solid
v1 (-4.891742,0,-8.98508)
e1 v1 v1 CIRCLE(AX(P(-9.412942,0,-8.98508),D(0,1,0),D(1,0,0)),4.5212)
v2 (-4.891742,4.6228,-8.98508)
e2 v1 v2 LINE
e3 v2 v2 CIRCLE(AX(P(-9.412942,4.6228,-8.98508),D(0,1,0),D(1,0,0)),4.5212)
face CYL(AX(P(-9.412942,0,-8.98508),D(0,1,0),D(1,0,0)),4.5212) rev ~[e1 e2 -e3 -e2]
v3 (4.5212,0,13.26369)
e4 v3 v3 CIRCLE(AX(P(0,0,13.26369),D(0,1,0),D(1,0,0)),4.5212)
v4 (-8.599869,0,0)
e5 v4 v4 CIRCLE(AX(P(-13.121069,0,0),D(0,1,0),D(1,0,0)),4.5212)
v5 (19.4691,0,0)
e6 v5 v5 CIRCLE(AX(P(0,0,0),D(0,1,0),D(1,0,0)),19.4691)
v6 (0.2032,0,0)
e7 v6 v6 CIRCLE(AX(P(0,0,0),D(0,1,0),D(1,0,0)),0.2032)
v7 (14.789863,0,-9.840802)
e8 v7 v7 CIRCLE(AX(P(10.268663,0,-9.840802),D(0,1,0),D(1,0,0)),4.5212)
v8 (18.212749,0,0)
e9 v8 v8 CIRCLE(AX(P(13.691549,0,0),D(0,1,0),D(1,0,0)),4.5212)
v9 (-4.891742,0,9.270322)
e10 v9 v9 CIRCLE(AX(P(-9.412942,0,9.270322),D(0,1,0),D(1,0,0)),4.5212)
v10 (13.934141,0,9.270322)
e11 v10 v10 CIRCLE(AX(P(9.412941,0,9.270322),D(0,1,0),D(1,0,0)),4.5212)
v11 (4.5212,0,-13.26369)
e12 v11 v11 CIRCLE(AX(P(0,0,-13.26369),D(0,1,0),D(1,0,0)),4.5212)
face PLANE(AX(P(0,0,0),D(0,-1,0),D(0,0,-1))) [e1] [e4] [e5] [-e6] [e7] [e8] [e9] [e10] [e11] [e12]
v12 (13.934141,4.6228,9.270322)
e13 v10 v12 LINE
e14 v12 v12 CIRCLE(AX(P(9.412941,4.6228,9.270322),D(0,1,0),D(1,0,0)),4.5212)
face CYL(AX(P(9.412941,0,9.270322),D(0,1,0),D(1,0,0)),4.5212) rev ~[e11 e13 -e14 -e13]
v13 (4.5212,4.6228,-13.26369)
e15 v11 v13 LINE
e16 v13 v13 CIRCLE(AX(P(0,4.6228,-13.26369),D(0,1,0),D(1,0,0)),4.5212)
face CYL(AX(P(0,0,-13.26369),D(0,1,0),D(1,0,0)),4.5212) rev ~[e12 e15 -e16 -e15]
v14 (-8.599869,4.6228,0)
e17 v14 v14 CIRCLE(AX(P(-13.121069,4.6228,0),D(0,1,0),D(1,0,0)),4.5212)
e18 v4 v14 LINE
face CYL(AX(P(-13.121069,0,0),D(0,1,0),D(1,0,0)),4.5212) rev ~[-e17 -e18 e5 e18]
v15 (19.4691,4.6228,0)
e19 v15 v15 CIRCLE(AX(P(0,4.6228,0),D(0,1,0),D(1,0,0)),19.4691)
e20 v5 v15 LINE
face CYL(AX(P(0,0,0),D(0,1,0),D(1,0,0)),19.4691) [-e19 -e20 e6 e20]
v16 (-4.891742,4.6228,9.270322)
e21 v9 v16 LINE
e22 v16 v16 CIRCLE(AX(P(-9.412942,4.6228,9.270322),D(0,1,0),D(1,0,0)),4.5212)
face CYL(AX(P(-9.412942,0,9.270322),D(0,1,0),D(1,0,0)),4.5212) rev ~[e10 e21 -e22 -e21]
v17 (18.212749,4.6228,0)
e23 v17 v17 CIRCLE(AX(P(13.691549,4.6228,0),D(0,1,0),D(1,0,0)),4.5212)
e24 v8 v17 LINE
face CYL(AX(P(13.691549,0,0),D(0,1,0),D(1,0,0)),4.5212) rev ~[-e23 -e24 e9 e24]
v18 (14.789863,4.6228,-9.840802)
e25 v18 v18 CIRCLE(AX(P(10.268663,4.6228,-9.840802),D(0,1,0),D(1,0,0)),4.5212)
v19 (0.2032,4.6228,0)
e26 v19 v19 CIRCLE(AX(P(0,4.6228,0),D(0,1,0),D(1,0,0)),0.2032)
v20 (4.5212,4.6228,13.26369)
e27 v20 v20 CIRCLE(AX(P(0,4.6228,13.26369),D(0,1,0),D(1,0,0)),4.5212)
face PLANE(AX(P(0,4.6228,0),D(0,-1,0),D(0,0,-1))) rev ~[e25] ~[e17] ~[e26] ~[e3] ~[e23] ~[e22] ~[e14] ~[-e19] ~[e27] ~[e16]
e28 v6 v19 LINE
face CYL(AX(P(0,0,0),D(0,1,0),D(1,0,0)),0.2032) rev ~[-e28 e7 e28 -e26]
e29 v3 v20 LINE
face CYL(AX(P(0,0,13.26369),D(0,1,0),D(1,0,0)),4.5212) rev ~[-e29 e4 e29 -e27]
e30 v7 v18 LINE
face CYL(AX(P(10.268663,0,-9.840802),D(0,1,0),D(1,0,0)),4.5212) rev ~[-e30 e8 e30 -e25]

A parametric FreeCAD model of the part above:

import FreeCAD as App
import Part
import Sketcher
Q = App.Units.Quantity

doc = App.newDocument("Part")
body = doc.addObject("PartDesign::Body", "Body")

# Sketch on XZ plane
sketch1 = doc.addObject("Sketcher::SketchObject", "Sketch")
body.addObject(sketch1)
sketch1.AttachmentSupport = (doc.XZ_Plane, [""])
sketch1.MapMode = "FlatFace"
sketch1.addGeometry([
    Part.Circle(App.Vector(0, 0, 0), App.Vector(0, 0, 1), 19.47),  # 0
    Part.Circle(App.Vector(-9.41, -8.99, 0), App.Vector(0, 0, 1), 4.52),  # 1
    Part.Circle(App.Vector(0, -13.26, 0), App.Vector(0, 0, 1), 4.52),  # 2
    Part.Circle(App.Vector(10.27, -9.84, 0), App.Vector(0, 0, 1), 4.52),  # 3
    Part.Circle(App.Vector(-13.12, 0, 0), App.Vector(0, 0, 1), 4.52),  # 4
    Part.Circle(App.Vector(0, 0, 0), App.Vector(0, 0, 1), 0.2),  # 5
    Part.Circle(App.Vector(-9.41, 9.27, 0), App.Vector(0, 0, 1), 4.52),  # 6
    Part.Circle(App.Vector(0, 13.26, 0), App.Vector(0, 0, 1), 4.52),  # 7
    Part.Circle(App.Vector(13.69, 0, 0), App.Vector(0, 0, 1), 4.52),  # 8
    Part.Circle(App.Vector(9.41, 9.27, 0), App.Vector(0, 0, 1), 4.52),  # 9
], False)
sketch1.addConstraint([
    Sketcher.Constraint("Coincident", 0, 3, -1, 1),
    Sketcher.Constraint("Coincident", 5, 3, -1, 1),
    Sketcher.Constraint("Equal", 1, 2),
    Sketcher.Constraint("Equal", 2, 3),
    Sketcher.Constraint("Equal", 3, 4),
    Sketcher.Constraint("Equal", 4, 6),
    Sketcher.Constraint("Equal", 6, 7),
    Sketcher.Constraint("Equal", 7, 8),
    Sketcher.Constraint("Equal", 8, 9),
    Sketcher.Constraint("Symmetric", 2, 3, 7, 3, -1, 1),
    Sketcher.Constraint("Symmetric", 6, 3, 9, 3, -2),
    Sketcher.Constraint("PointOnObject", 2, 3, -2),
    Sketcher.Constraint("PointOnObject", 4, 3, -1),
    Sketcher.Constraint("PointOnObject", 8, 3, -1),
    Sketcher.Constraint("Vertical", 1, 3, 6, 3),
    Sketcher.Constraint("Diameter", 0, Q("1.533 in")),
    Sketcher.Constraint("Diameter", 1, Q("0.356 in")),
    Sketcher.Constraint("Diameter", 5, Q("0.016 in")),
    Sketcher.Constraint("DistanceY", 1, 3, 6, 3, 18.255402),
    Sketcher.Constraint("DistanceX", 1, 3, -1, 1, 9.412942),
    Sketcher.Constraint("DistanceY", 1, 3, -1, 1, 8.98508),
    Sketcher.Constraint("DistanceY", 2, 3, -1, 1, 13.26369),
    Sketcher.Constraint("DistanceX", 4, 3, -1, 1, 13.121069),
    Sketcher.Constraint("DistanceX", -1, 1, 8, 3, 13.691549),
    Sketcher.Constraint("DistanceY", 2, 3, 3, 3, 3.422888),
    Sketcher.Constraint("DistanceX", -1, 1, 3, 3, 10.268663),
])

# Sketch on XY plane
sketch2 = doc.addObject("Sketcher::SketchObject", "Sketch001")
body.addObject(sketch2)
sketch2.AttachmentSupport = (doc.XY_Plane, [""])
sketch2.MapMode = "FlatFace"
sketch2.addGeometry(Part.LineSegment(App.Vector(0, 0, 0), App.Vector(0, 4.6, 0)), False)
sketch2.addConstraint([
    Sketcher.Constraint("Vertical", 0),
    Sketcher.Constraint("Coincident", 0, 1, -1, 1),
    Sketcher.Constraint("DistanceY", 0, 1, 0, 2, Q("0.182 in")),
])
doc.recompute()

additivepipe = doc.addObject("PartDesign::AdditivePipe", "AdditivePipe")
body.addObject(additivepipe)
additivepipe.Profile = sketch1
additivepipe.Spine = (sketch2, ["Edge1"])

doc.recompute()
